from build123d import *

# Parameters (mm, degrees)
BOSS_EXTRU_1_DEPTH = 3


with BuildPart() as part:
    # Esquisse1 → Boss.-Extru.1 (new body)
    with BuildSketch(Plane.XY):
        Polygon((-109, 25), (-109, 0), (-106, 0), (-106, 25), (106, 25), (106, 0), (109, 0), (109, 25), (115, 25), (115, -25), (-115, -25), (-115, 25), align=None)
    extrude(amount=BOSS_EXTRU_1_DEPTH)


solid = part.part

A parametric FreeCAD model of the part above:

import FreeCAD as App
import Part
import Sketcher
from FreeCAD import Vector


def add_polygon(sketch, points):
    """Adds a closed chain of lines whose ends are joined by coincident constraints."""
    first, n = sketch.GeometryCount, len(points)
    for a, b in zip(points, points[1:] + points[:1]):
        sketch.addGeometry(Part.LineSegment(App.Vector(*a, 0), App.Vector(*b, 0)), False)
    for i in range(n):
        sketch.addConstraint(Sketcher.Constraint("Coincident", first + i, 2, first + (i + 1) % n, 1))

doc = App.newDocument("Part")
body = doc.addObject("PartDesign::Body", "Body")

sketch1 = body.newObject("Sketcher::SketchObject", "Sketch")
sketch1.AttachmentSupport = (doc.getObject("XY_Plane"), [""])
sketch1.MapMode = "FlatFace"
add_polygon(sketch1, [(-109, 0), (-109, 25), (-115, 25), (-115, -25), (115, -25), (115, 25), (109, 25), (109, 0), (106, 0), (106, 25), (-106, 25), (-106, 0)])
sketch1.addConstraint(Sketcher.Constraint("Vertical", 0))
sketch1.addConstraint(Sketcher.Constraint("Horizontal", 1))
sketch1.addConstraint(Sketcher.Constraint("Vertical", 2))
sketch1.addConstraint(Sketcher.Constraint("Horizontal", 3))
sketch1.addConstraint(Sketcher.Constraint("Vertical", 4))
sketch1.addConstraint(Sketcher.Constraint("Horizontal", 5))
sketch1.addConstraint(Sketcher.Constraint("Vertical", 6))
sketch1.addConstraint(Sketcher.Constraint("Horizontal", 7))
sketch1.addConstraint(Sketcher.Constraint("Vertical", 8))
sketch1.addConstraint(Sketcher.Constraint("Horizontal", 9))
sketch1.addConstraint(Sketcher.Constraint("Vertical", 10))
sketch1.addConstraint(Sketcher.Constraint("Horizontal", 11))
sketch1.addConstraint(Sketcher.Constraint("Symmetric", 1, 2, 3, 2, -1, 1))
sketch1.addConstraint(Sketcher.Constraint("Symmetric", 7, 2, 10, 2, -1, 1))
sketch1.addConstraint(Sketcher.Constraint("Symmetric", 0, 2, 5, 2, -2))
sketch1.addConstraint(Sketcher.Constraint("PointOnObject", 6, 2, -1))
sketch1.addConstraint(Sketcher.Constraint("Horizontal", 5, 2, 8, 2))
sketch1.addConstraint(Sketcher.Constraint("DistanceX", 1, 2, 1, 1, 6.0))
sketch1.addConstraint(Sketcher.Constraint("DistanceX", 3, 1, 3, 2, 230.0))
sketch1.addConstraint(Sketcher.Constraint("DistanceX", 7, 2, 7, 1, 3.0))
sketch1.addConstraint(Sketcher.Constraint("DistanceY", 0, 1, 0, 2, 25.0))
pad1 = body.newObject("PartDesign::Pad", "Pad")
pad1.Profile = sketch1
pad1.Length = 3

doc.recompute()
